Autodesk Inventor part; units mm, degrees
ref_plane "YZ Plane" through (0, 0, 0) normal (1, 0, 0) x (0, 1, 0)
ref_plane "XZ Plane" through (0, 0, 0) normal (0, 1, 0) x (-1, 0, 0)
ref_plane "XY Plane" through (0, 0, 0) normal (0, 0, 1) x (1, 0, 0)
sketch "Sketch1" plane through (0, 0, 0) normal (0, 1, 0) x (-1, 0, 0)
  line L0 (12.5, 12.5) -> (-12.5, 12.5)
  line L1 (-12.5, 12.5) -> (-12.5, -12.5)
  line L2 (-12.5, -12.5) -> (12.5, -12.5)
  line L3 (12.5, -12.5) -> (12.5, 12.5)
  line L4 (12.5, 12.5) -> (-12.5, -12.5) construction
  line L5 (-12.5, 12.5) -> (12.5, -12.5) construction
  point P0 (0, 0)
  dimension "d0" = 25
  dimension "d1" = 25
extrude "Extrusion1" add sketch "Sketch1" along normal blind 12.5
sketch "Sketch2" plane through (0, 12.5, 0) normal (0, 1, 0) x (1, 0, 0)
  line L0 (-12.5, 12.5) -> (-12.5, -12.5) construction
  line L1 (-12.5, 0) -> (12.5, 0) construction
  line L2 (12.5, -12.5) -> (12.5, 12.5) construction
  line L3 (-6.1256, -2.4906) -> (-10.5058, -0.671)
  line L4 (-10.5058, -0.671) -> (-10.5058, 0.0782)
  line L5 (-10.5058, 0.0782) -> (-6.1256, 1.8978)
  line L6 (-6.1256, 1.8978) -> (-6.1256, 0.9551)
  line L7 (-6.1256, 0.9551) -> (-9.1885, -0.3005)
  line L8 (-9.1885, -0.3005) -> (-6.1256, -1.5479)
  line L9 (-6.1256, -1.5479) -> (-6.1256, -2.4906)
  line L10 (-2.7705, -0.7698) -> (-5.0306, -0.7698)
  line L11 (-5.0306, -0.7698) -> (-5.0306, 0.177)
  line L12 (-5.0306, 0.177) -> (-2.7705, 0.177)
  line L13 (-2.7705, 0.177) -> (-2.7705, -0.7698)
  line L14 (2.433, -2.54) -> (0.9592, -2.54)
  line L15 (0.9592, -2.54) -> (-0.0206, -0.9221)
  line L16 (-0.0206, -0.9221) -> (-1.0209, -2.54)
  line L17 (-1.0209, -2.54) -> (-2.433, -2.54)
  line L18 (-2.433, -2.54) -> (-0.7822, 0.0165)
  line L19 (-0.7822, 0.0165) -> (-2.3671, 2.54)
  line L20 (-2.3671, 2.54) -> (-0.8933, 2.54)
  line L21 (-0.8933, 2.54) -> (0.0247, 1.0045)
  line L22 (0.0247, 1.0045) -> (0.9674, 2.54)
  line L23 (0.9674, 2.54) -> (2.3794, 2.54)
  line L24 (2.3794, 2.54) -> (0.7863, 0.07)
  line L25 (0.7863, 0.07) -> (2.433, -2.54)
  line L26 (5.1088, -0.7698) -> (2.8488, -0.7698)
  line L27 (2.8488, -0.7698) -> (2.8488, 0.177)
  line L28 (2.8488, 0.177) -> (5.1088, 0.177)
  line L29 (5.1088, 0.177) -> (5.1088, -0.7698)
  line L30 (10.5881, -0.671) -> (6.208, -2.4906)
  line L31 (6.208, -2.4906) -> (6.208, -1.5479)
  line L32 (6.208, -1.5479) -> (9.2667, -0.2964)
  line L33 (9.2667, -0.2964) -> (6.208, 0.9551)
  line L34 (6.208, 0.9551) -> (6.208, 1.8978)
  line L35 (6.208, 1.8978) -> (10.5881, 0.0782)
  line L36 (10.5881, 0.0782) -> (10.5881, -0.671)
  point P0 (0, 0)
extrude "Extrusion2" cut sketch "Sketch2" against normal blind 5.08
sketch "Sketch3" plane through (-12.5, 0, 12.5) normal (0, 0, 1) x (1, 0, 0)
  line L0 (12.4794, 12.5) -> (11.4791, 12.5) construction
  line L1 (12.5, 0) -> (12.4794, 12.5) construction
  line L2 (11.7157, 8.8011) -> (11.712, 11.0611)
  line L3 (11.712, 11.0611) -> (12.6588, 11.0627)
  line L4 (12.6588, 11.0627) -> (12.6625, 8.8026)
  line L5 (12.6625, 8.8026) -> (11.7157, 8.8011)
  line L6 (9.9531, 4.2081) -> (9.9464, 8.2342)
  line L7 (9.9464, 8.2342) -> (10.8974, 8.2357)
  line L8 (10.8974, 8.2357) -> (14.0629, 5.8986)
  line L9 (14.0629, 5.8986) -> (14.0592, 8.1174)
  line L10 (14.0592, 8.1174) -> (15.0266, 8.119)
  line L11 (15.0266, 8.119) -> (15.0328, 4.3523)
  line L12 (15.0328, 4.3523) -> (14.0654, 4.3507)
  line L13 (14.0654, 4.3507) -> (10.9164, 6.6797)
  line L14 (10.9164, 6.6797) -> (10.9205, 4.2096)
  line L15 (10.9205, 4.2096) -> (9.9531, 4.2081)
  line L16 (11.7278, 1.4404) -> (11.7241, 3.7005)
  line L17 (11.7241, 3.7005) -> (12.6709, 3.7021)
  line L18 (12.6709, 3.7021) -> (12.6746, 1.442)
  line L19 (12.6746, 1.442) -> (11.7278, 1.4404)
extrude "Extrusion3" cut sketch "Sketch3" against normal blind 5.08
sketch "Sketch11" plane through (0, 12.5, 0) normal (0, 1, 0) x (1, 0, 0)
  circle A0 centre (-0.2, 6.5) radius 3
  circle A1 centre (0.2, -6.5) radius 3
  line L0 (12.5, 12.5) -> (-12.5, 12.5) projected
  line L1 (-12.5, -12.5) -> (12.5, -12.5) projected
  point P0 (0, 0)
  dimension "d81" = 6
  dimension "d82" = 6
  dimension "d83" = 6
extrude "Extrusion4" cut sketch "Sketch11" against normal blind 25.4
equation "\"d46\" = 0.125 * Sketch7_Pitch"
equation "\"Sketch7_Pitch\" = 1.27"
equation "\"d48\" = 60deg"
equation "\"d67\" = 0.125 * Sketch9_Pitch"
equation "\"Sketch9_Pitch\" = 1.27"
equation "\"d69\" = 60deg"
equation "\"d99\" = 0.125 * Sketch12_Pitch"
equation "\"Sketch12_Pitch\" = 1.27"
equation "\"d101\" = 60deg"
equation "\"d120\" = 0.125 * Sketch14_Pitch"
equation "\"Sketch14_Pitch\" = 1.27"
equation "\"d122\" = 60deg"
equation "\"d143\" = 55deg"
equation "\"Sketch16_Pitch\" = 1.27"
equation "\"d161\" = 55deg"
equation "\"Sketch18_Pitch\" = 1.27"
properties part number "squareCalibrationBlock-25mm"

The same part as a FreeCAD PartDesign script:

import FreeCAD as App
import Part
import Sketcher
from FreeCAD import Vector
Q = App.Units.Quantity


def add_polygon(sketch, points):
    """Adds a closed chain of lines whose ends are joined by coincident constraints."""
    first, n = sketch.GeometryCount, len(points)
    for a, b in zip(points, points[1:] + points[:1]):
        sketch.addGeometry(Part.LineSegment(App.Vector(*a, 0), App.Vector(*b, 0)), False)
    for i in range(n):
        sketch.addConstraint(Sketcher.Constraint("Coincident", first + i, 2, first + (i + 1) % n, 1))

doc = App.newDocument("Part")
body = doc.addObject("PartDesign::Body", "Body")

sketch1 = body.newObject("Sketcher::SketchObject", "Sketch")
sketch1.AttachmentSupport = (doc.getObject("XZ_Plane"), [""])
sketch1.MapMode = "FlatFace"
add_polygon(sketch1, [(-12, -12), (-12, 12), (12, 12), (12, -12)])
sketch1.addConstraint([
    Sketcher.Constraint("Vertical", 0),
    Sketcher.Constraint("Horizontal", 1),
    Sketcher.Constraint("Vertical", 2),
    Sketcher.Constraint("Horizontal", 3),
    Sketcher.Constraint("Symmetric", 0, 2, 2, 2, -1, 1),
    Sketcher.Constraint("Equal", 3, 0),
    Sketcher.Constraint("DistanceX", 1, 1, 1, 2, Q("25 mm")),
])
pad1 = body.newObject("PartDesign::Pad", "Pad")
pad1.Profile = sketch1
pad1.Length = 12.5
pad1.Reversed = True

sketch2 = body.newObject("Sketcher::SketchObject", "Sketch001")
sketch2.AttachmentSupport = (doc.getObject("XZ_Plane"), [""])
sketch2.MapMode = "FlatFace"
sketch2.AttachmentOffset = App.Placement(Vector(0, 0, -12.5), App.Rotation())
add_polygon(sketch2, [(-10.5, 0.7), (-6.1, 2.5), (-6.1, 1.5), (-9.2, 0.3), (-6.1, -1), (-6.1, -1.9), (-10.5, -0.1)])
add_polygon(sketch2, [(-5, 0.8), (-2.8, 0.8), (-2.8, -0.2), (-5, -0.2)])
add_polygon(sketch2, [(1, 2.5), (2.4, 2.5), (0.8, -0.1), (2.4, -2.5), (1, -2.5), (0, -1), (-0.9, -2.5), (-2.4, -2.5), (-0.8, 0), (-2.4, 2.5), (-1, 2.5), (0, 0.9)])
add_polygon(sketch2, [(2.8, 0.8), (5.1, 0.8), (5.1, -0.2), (2.8, -0.2)])
add_polygon(sketch2, [(6.2, 2.5), (10.6, 0.7), (10.6, -0.1), (6.2, -1.9), (6.2, -1), (9.3, 0.3), (6.2, 1.5)])
sketch2.addConstraint([
    Sketcher.Constraint("Vertical", 1),
    Sketcher.Constraint("Vertical", 4),
    Sketcher.Constraint("Vertical", 6),
    Sketcher.Constraint("Horizontal", 7),
    Sketcher.Constraint("Vertical", 8),
    Sketcher.Constraint("Horizontal", 9),
    Sketcher.Constraint("Vertical", 10),
    Sketcher.Constraint("Horizontal", 11),
    Sketcher.Constraint("Horizontal", 14),
    Sketcher.Constraint("Horizontal", 17),
    Sketcher.Constraint("Horizontal", 20),
    Sketcher.Constraint("Horizontal", 23),
    Sketcher.Constraint("Vertical", 24),
    Sketcher.Constraint("Horizontal", 25),
    Sketcher.Constraint("Vertical", 26),
    Sketcher.Constraint("Vertical", 28),
    Sketcher.Constraint("Vertical", 30),
    Sketcher.Constraint("Vertical", 33),
    Sketcher.Constraint("Symmetric", 11, 2, 19, 2, -2),
    Sketcher.Constraint("Parallel", 5, 27),
    Sketcher.Constraint("Parallel", 0, 29),
    Sketcher.Constraint("Horizontal", 14, 2, 16, 2),
    Sketcher.Constraint("Horizontal", 10, 2, 23, 2),
    Sketcher.Constraint("Horizontal", 9, 2, 24, 2),
    Sketcher.Constraint("Horizontal", 6, 2, 27, 2),
    Sketcher.Constraint("Horizontal", 5, 2, 28, 2),
    Sketcher.Constraint("Horizontal", 4, 2, 29, 2),
    Sketcher.Constraint("Horizontal", 3, 2, 30, 2),
    Sketcher.Constraint("Horizontal", 1, 2, 32, 2),
    Sketcher.Constraint("Horizontal", 0, 2, 33, 2),
    Sketcher.Constraint("Vertical", 1, 2, 3, 2),
    Sketcher.Constraint("Vertical", 30, 2, 32, 2),
    Sketcher.Constraint("Equal", 11, 17),
    Sketcher.Constraint("Equal", 14, 20),
    Sketcher.Constraint("Equal", 9, 23),
    Sketcher.Constraint("Equal", 1, 4),
    Sketcher.Constraint("Equal", 31, 32),
    Sketcher.Constraint("Angle", 22, Q("58.801 deg")),
    Sketcher.Constraint("DistanceX", 7, 1, 7, 2, Q("2.26 mm")),
    Sketcher.Constraint("Angle", 2, Q("-157.8408 deg")),
    Sketcher.Constraint("Angle", 3, Q("-22.2906 deg")),
    Sketcher.Constraint("Angle", 13, Q("-57.1788 deg")),
    Sketcher.Constraint("Angle", 18, Q("57.8689 deg")),
    Sketcher.Constraint("Angle", 27, Q("-22.5592 deg")),
    Sketcher.Constraint("Distance", 18, Q("2.98 mm")),
    Sketcher.Constraint("DistanceX", 14, 2, 14, 1, Q("1.412 mm")),
    Sketcher.Constraint("DistanceY", -1, 1, 11, 2, Q("2.54 mm")),
    Sketcher.Constraint("DistanceY", 12, 2, -1, 1, Q("0.07 mm")),
    Sketcher.Constraint("DistanceY", 13, 2, -1, 1, Q("2.54 mm")),
    Sketcher.Constraint("DistanceY", 2, 2, 0, 2, Q("2.19 mm")),
    Sketcher.Constraint("DistanceX", 8, 2, 13, 2, Q("5.15 mm")),
    Sketcher.Constraint("DistanceX", 7, 2, 21, 2, Q("2.75 mm")),
    Sketcher.Constraint("DistanceX", 20, 2, 22, 2, Q("1.98 mm")),
    Sketcher.Constraint("Distance", 0, Q("4.743 mm")),
    Sketcher.Constraint("Distance", 12, Q("3.086 mm")),
    Sketcher.Constraint("Distance", 16, Q("1.789 mm")),
    Sketcher.Constraint("DistanceX", 11, 1, 11, 2, Q("1.4738 mm")),
    Sketcher.Constraint("DistanceY", 1, 2, 1, 1, Q("0.9427 mm")),
    Sketcher.Constraint("DistanceY", 8, 2, 8, 1, Q("0.9468 mm")),
    Sketcher.Constraint("DistanceY", -1, 1, 1, 2, Q("1.548 mm")),
    Sketcher.Constraint("DistanceY", 8, 2, -1, 1, Q("0.177 mm")),
    Sketcher.Constraint("DistanceX", 17, 2, -1, 1, Q("2.367 mm")),
    Sketcher.Constraint("DistanceX", -1, 1, 27, 2, Q("10.588 mm")),
    Sketcher.Constraint("DistanceX", 1, 2, 7, 2, Q("3.355 mm")),
    Sketcher.Constraint("DistanceX", 16, 2, 15, 2, Q("0.918 mm")),
    Sketcher.Constraint("DistanceX", 23, 2, 31, 2, Q("4.158 mm")),
    Sketcher.Constraint("Distance", 31, Q("3.3048 mm")),
])
pocket1 = body.newObject("PartDesign::Pocket", "Pocket")
pocket1.Profile = sketch2
pocket1.Length = 5.08
pocket1.Reversed = True

sketch3 = body.newObject("Sketcher::SketchObject", "Sketch002")
sketch3.AttachmentSupport = (doc.getObject("XY_Plane"), [""])
sketch3.MapMode = "FlatFace"
sketch3.AttachmentOffset = App.Placement(Vector(0, 0, 12.5), App.Rotation())
add_polygon(sketch3, [(-0.788, 11.0611), (-0.7843, 8.8011), (0.1625, 8.8026), (0.1588, 11.0627)])
add_polygon(sketch3, [(-2.5536, 8.2342), (-2.5469, 4.2081), (-1.5795, 4.2096), (-1.5836, 6.6797), (1.5654, 4.3507), (2.5328, 4.3523), (2.5266, 8.119), (1.5592, 8.1174), (1.5629, 5.8986), (-1.6026, 8.2357)])
add_polygon(sketch3, [(-0.7759, 3.7005), (-0.7722, 1.4404), (0.1746, 1.442), (0.1709, 3.7021)])
sketch3.addConstraint([
    Sketcher.Constraint("Distance", 0, Q("2.26 mm")),
    Sketcher.Constraint("Distance", 2, Q("2.26 mm")),
    Sketcher.Constraint("Distance", 6, Q("2.47 mm")),
    Sketcher.Constraint("Distance", 14, Q("2.26 mm")),
    Sketcher.Constraint("Distance", 16, Q("2.26 mm")),
    Sketcher.Constraint("DistanceX", 11, 2, 8, 2, Q("0.97 mm")),
    Sketcher.Constraint("DistanceX", 13, 2, 6, 2, Q("0.97 mm")),
    Sketcher.Constraint("Distance", 4, Q("4.026 mm")),
    Sketcher.Constraint("Distance", 13, Q("0.951 mm")),
    Sketcher.Constraint("DistanceY", -1, 1, 0, 2, Q("8.801 mm")),
    Sketcher.Constraint("DistanceX", 3, 2, -1, 1, Q("0.788 mm")),
    Sketcher.Constraint("DistanceX", 4, 2, -1, 1, Q("2.547 mm")),
    Sketcher.Constraint("DistanceY", -1, 1, 4, 2, Q("4.208 mm")),
    Sketcher.Constraint("DistanceY", -1, 1, 9, 2, Q("8.119 mm")),
    Sketcher.Constraint("DistanceX", -1, 1, 11, 2, Q("1.563 mm")),
    Sketcher.Constraint("DistanceY", -1, 1, 15, 2, Q("1.442 mm")),
    Sketcher.Constraint("DistanceX", -1, 1, 16, 2, Q("0.171 mm")),
    Sketcher.Constraint("DistanceX", 17, 2, -1, 1, Q("0.776 mm")),
    Sketcher.Constraint("DistanceX", 0, 2, 2, 2, Q("0.943 mm")),
    Sketcher.Constraint("DistanceX", 5, 2, 1, 2, Q("1.742 mm")),
    Sketcher.Constraint("DistanceY", 5, 2, 1, 2, Q("4.593 mm")),
    Sketcher.Constraint("DistanceX", 6, 2, 5, 2, Q("0.004 mm")),
    Sketcher.Constraint("DistanceX", 5, 2, 7, 2, Q("3.145 mm")),
    Sketcher.Constraint("DistanceY", 5, 2, 7, 2, Q("0.141 mm")),
    Sketcher.Constraint("DistanceX", 1, 2, 9, 2, Q("2.364 mm")),
    Sketcher.Constraint("DistanceX", 0, 2, 9, 2, Q("3.311 mm")),
    Sketcher.Constraint("DistanceY", 7, 2, 11, 2, Q("1.548 mm")),
    Sketcher.Constraint("DistanceY", 6, 2, 12, 2, Q("1.556 mm")),
    Sketcher.Constraint("DistanceX", 14, 2, 8, 2, Q("3.305 mm")),
    Sketcher.Constraint("DistanceY", 14, 2, 8, 2, Q("2.912 mm")),
    Sketcher.Constraint("DistanceX", 5, 2, 15, 2, Q("1.754 mm")),
    Sketcher.Constraint("DistanceY", 17, 2, 5, 2, Q("0.509 mm")),
    Sketcher.Constraint("Distance", 3, Q("0.9468 mm")),
    Sketcher.Constraint("Distance", 9, Q("3.7667 mm")),
    Sketcher.Constraint("Distance", 10, Q("0.9674 mm")),
    Sketcher.Constraint("Distance", 11, Q("2.2188 mm")),
])
pocket2 = body.newObject("PartDesign::Pocket", "Pocket001")
pocket2.Profile = sketch3
pocket2.Length = 5.08

sketch4 = body.newObject("Sketcher::SketchObject", "Sketch003")
sketch4.AttachmentSupport = (doc.getObject("XZ_Plane"), [""])
sketch4.MapMode = "FlatFace"
sketch4.AttachmentOffset = App.Placement(Vector(0, 0, -12.5), App.Rotation())
sketch4.addGeometry([
    Part.Circle(Vector(-0.2, -6.5, 0), Vector(0, 0, 1), 3),
    Part.Circle(Vector(0.2, 6.5, 0), Vector(0, 0, 1), 3),
], False)
sketch4.addConstraint([
    Sketcher.Constraint("Equal", 0, 1),
    Sketcher.Constraint("Symmetric", 0, 3, 1, 3, -1, 1),
    Sketcher.Constraint("Diameter", 0, Q("6 mm")),
    Sketcher.Constraint("DistanceY", 0, 3, 1, 3, Q("13 mm")),
    Sketcher.Constraint("DistanceX", 0, 3, -1, 1, Q("0.2 mm")),
])
pocket3 = body.newObject("PartDesign::Pocket", "Pocket002")
pocket3.Profile = sketch4
pocket3.Length = 25.4
pocket3.Reversed = True

doc.recompute()
